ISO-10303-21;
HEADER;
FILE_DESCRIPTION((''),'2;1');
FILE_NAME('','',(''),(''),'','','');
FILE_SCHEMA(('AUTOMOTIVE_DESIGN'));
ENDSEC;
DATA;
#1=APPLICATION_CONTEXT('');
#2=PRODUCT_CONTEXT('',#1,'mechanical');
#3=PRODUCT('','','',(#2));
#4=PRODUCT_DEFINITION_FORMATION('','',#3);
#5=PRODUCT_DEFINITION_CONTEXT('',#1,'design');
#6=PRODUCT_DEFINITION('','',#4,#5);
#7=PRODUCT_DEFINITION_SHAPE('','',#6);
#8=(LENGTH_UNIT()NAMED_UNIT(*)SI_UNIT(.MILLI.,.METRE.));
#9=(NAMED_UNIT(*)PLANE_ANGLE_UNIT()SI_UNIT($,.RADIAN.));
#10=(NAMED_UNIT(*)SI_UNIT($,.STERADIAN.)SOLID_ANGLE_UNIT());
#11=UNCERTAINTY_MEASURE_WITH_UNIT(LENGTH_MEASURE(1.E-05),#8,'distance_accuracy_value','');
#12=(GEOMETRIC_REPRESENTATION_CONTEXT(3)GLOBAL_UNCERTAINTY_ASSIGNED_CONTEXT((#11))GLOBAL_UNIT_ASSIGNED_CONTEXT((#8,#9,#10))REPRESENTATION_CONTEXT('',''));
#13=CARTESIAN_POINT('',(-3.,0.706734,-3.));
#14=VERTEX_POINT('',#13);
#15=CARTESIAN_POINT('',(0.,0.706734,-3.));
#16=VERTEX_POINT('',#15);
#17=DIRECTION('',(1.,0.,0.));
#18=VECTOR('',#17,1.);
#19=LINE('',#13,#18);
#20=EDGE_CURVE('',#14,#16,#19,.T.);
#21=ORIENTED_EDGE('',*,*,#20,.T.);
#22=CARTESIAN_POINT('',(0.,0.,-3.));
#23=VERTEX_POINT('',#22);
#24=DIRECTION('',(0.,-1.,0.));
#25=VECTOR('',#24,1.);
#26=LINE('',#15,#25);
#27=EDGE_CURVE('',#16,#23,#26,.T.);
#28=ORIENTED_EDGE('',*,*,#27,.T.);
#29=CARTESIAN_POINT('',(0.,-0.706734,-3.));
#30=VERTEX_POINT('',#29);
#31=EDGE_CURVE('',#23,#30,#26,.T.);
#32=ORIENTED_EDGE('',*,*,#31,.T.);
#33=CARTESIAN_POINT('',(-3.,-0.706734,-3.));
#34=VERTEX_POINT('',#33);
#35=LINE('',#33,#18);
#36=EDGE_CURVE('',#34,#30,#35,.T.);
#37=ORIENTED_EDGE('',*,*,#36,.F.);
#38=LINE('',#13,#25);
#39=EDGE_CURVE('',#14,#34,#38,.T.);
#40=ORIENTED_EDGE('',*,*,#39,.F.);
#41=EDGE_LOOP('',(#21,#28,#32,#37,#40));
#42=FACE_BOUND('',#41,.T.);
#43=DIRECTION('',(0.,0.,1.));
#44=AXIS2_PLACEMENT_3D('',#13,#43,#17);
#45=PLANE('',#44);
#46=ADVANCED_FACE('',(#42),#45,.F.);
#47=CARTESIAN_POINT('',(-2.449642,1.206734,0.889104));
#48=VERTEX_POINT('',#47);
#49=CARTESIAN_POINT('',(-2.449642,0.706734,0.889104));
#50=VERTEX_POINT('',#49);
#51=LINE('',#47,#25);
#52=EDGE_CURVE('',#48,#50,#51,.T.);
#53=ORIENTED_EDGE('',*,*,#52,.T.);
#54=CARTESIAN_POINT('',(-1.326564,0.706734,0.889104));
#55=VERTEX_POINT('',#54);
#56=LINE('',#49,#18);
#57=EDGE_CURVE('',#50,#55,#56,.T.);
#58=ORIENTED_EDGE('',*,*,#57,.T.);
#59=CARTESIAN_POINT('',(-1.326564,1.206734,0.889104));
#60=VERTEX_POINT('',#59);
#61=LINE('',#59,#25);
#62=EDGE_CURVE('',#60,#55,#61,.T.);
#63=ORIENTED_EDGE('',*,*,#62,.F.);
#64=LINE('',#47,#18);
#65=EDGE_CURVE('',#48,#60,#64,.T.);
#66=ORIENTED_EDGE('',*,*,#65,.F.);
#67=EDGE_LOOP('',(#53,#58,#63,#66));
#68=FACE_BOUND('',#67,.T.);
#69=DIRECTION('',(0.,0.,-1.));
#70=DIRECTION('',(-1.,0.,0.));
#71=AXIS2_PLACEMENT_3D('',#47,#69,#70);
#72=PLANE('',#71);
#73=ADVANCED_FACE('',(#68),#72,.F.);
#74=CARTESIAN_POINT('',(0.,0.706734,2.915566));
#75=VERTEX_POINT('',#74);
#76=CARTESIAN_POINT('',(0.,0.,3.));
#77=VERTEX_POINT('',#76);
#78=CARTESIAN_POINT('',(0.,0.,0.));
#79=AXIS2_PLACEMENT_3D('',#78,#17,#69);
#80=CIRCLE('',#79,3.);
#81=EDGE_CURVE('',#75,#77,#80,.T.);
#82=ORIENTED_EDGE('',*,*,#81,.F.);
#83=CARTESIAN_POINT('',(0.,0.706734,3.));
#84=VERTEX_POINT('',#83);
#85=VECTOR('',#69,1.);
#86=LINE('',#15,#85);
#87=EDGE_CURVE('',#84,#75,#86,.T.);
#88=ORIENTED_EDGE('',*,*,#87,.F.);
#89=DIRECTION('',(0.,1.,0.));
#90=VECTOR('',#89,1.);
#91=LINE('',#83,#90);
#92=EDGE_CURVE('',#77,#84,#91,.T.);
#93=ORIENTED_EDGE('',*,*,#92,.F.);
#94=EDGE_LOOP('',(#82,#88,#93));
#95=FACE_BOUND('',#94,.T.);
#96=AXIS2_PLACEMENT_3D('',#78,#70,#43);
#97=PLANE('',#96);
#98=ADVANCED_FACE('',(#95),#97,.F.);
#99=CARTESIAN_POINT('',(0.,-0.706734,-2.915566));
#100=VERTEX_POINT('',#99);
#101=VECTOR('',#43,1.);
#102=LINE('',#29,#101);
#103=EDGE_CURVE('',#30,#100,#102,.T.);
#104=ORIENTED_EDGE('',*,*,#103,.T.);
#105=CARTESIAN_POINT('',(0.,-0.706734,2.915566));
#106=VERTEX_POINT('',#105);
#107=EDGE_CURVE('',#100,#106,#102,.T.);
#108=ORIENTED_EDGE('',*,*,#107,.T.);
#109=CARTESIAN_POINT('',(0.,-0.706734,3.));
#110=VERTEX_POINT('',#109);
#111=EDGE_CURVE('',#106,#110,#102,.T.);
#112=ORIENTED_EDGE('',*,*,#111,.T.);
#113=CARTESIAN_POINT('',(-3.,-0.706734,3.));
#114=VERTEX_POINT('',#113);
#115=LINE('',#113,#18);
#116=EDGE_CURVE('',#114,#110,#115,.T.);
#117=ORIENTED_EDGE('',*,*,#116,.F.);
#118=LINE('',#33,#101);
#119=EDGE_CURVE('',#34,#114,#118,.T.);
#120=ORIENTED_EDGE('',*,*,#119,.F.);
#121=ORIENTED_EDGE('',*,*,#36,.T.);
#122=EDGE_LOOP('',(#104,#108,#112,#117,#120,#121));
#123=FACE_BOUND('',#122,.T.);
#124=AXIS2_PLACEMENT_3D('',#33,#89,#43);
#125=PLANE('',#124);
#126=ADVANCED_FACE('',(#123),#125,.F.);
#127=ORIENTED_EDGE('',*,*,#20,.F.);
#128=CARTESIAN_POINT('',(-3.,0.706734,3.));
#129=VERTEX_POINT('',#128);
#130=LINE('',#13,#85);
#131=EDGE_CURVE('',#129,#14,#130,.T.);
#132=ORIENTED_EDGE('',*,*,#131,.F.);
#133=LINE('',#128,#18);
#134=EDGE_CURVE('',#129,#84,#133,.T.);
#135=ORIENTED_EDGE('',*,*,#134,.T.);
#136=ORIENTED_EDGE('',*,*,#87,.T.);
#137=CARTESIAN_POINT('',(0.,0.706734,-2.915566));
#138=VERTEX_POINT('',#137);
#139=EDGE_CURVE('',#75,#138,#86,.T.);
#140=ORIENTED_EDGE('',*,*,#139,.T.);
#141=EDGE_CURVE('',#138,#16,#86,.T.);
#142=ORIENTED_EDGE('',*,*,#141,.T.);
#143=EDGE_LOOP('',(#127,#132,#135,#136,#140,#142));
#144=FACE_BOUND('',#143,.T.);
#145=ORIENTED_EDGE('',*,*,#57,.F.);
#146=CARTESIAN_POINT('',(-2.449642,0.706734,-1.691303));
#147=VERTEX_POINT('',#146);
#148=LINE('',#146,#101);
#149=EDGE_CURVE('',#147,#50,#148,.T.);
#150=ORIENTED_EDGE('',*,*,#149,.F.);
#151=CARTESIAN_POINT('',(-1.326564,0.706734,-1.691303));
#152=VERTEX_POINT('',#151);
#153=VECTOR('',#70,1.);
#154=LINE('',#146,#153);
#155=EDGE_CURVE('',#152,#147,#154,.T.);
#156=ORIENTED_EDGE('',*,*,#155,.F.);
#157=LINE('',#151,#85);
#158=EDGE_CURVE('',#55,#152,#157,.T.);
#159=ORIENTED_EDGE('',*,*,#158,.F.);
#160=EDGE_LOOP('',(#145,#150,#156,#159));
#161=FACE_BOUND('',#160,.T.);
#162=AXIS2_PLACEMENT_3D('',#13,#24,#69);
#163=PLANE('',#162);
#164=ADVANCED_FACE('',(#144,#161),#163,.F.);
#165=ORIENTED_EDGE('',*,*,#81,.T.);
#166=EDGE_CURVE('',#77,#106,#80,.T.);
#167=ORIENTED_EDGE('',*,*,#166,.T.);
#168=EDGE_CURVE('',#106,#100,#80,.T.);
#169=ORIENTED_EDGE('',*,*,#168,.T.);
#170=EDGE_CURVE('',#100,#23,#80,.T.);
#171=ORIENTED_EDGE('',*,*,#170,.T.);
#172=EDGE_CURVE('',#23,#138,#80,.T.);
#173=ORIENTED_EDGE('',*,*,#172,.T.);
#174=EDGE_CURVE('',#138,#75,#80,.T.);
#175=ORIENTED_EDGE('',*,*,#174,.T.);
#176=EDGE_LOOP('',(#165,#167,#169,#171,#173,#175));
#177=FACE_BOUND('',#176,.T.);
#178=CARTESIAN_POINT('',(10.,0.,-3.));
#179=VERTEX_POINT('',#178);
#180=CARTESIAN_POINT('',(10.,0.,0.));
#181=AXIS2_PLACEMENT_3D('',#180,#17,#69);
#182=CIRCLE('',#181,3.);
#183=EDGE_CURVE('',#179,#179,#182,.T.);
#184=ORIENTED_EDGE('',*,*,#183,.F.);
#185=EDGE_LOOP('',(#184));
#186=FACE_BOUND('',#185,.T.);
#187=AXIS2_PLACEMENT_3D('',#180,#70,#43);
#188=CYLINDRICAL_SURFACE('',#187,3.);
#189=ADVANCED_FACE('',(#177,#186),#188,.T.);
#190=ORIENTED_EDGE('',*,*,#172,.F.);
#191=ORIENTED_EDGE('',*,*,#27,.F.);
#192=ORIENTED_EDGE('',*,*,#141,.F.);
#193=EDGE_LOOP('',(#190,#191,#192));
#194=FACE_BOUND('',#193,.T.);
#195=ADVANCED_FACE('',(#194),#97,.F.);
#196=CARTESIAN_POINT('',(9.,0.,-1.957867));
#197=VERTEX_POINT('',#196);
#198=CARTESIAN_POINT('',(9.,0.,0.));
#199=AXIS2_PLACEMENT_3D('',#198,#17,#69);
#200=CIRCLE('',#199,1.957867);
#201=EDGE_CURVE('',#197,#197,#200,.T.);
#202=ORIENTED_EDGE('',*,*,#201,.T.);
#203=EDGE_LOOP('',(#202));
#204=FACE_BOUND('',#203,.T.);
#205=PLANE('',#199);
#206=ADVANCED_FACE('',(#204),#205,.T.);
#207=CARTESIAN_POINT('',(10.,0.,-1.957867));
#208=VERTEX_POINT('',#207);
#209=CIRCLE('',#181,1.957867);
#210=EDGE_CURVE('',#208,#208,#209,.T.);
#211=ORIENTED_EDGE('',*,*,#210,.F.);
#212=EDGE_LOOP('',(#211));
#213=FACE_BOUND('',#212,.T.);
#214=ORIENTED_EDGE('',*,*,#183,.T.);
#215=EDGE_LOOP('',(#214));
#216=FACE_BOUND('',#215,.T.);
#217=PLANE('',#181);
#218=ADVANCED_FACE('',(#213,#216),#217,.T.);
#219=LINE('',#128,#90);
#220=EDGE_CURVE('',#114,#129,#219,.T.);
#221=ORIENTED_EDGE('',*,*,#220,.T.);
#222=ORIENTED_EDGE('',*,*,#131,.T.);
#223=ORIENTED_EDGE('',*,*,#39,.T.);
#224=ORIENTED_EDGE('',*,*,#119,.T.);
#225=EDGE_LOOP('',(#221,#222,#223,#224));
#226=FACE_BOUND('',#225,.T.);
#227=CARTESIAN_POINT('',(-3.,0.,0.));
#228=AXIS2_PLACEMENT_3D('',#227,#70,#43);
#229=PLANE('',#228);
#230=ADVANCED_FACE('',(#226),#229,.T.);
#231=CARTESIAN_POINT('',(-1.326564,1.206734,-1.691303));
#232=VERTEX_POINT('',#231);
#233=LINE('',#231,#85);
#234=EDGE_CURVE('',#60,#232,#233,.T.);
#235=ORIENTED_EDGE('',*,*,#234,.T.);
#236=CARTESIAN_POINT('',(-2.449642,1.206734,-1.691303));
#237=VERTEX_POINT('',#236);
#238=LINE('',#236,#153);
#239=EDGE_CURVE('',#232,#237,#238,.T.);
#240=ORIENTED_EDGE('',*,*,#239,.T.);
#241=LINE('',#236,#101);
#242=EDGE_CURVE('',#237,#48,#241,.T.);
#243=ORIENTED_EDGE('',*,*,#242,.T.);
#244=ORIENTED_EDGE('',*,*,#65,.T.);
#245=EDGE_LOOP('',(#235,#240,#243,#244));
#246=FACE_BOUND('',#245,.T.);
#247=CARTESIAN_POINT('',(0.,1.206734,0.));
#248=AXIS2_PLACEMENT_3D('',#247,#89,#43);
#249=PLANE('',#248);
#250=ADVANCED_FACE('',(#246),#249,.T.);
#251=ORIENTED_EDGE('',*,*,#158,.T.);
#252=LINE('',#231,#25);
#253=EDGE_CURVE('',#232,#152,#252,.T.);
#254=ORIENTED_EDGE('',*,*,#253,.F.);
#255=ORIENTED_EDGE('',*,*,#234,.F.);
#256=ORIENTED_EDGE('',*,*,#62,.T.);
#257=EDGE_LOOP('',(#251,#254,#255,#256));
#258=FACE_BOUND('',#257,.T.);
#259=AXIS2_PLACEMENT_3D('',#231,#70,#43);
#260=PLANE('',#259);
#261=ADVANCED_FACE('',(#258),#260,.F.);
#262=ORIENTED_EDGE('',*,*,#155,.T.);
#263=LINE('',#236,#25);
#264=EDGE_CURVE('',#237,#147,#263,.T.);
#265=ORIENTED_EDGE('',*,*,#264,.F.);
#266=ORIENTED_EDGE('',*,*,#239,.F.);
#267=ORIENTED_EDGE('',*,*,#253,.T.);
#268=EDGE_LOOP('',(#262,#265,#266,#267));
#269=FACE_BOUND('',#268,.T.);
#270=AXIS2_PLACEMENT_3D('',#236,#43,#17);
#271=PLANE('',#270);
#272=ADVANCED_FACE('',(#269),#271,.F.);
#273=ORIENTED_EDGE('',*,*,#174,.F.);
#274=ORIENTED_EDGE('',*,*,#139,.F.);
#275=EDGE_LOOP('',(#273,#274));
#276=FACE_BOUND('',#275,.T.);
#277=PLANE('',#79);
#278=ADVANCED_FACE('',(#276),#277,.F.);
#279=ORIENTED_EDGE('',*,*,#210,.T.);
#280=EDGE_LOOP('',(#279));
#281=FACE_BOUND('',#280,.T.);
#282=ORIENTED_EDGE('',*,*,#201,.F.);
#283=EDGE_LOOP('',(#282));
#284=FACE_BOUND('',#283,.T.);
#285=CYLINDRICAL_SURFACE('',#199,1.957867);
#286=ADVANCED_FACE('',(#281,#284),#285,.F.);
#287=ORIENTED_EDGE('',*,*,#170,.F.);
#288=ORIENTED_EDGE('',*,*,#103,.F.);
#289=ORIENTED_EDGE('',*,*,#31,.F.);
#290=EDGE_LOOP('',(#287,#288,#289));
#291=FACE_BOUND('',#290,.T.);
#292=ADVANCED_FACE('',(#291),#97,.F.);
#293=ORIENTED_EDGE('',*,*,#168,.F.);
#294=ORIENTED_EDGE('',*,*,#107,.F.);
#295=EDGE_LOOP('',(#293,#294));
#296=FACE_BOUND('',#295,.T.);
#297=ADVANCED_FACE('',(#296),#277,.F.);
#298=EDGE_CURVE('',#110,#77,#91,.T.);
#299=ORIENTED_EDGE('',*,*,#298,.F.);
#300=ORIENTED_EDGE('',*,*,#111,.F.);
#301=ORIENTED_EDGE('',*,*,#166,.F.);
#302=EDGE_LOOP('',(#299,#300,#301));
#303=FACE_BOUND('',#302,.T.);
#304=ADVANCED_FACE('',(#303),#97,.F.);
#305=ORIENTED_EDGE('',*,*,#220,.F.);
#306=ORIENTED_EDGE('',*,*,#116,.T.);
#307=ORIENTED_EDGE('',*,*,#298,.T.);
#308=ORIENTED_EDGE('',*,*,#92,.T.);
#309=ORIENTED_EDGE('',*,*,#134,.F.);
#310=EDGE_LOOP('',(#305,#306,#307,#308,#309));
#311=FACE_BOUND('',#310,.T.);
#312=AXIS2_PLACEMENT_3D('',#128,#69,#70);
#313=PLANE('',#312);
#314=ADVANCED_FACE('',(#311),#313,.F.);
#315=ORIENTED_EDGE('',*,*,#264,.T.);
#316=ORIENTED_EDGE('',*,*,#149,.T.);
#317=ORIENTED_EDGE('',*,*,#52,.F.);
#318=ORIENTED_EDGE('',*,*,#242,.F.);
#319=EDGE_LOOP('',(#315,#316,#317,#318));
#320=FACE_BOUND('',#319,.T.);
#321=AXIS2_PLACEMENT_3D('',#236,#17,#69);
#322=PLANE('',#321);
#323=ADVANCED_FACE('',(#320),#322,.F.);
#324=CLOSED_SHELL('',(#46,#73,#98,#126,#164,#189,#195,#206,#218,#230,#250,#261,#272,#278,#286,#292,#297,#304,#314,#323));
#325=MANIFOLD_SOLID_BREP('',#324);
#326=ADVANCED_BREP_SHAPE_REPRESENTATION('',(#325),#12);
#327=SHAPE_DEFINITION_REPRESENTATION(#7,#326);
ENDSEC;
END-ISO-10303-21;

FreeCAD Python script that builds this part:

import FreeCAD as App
import Part
import Sketcher
from FreeCAD import Vector

doc = App.newDocument("Part")
body = doc.addObject("PartDesign::Body", "Body")

# Sketch on YZ plane
sketch1 = doc.addObject("Sketcher::SketchObject", "Sketch")
body.addObject(sketch1)
sketch1.AttachmentSupport = (doc.YZ_Plane, [""])
sketch1.MapMode = "FlatFace"
sketch1.addGeometry(Part.Circle(Vector(0, 0, 0), Vector(0, 0, 1), 3), False)
sketch1.addConstraint([
    Sketcher.Constraint("Coincident", 0, 3, -1, 1),
    Sketcher.Constraint("Diameter", 0, 6.0),
])
pad1 = doc.addObject("PartDesign::Pad", "Pad")
body.addObject(pad1)
pad1.Profile = sketch1
pad1.Length = 10

# Sketch on YZ plane
sketch2 = doc.addObject("Sketcher::SketchObject", "Sketch001")
body.addObject(sketch2)
sketch2.AttachmentSupport = (doc.YZ_Plane, [""])
sketch2.MapMode = "FlatFace"
sketch2.AttachmentOffset = App.Placement(Vector(0, 0, 10), App.Rotation())
sketch2.addGeometry(Part.Circle(Vector(0, 0, 0), Vector(0, 0, 1), 2), False)
sketch2.addConstraint([
    Sketcher.Constraint("Coincident", 0, 3, -1, 1),
    Sketcher.Constraint("Diameter", 0, 3.915734),
])
pocket1 = doc.addObject("PartDesign::Pocket", "Pocket")
body.addObject(pocket1)
pocket1.Profile = sketch2
pocket1.Length = 1

# Sketch on YZ plane
sketch3 = doc.addObject("Sketcher::SketchObject", "Sketch002")
body.addObject(sketch3)
sketch3.AttachmentSupport = (doc.YZ_Plane, [""])
sketch3.MapMode = "FlatFace"
sketch3.addGeometry([
    Part.LineSegment(Vector(0.7, -3, 0), Vector(-0.7, -3, 0)),
    Part.LineSegment(Vector(-0.7, -3, 0), Vector(-0.7, 3, 0)),
    Part.LineSegment(Vector(-0.7, 3, 0), Vector(0.7, 3, 0)),
    Part.LineSegment(Vector(0.7, 3, 0), Vector(0.7, -3, 0)),
], False)
sketch3.addConstraint([
    Sketcher.Constraint("Coincident", 0, 2, 1, 1),
    Sketcher.Constraint("Coincident", 1, 2, 2, 1),
    Sketcher.Constraint("Coincident", 2, 2, 3, 1),
    Sketcher.Constraint("Coincident", 3, 2, 0, 1),
    Sketcher.Constraint("Horizontal", 0),
    Sketcher.Constraint("Vertical", 1),
    Sketcher.Constraint("Horizontal", 2),
    Sketcher.Constraint("Vertical", 3),
    Sketcher.Constraint("Symmetric", 0, 2, 2, 2, -1, 1),
    Sketcher.Constraint("DistanceY", 1, 1, 1, 2, 6.0),
    Sketcher.Constraint("DistanceX", 0, 2, 0, 1, 1.413467),
])
pad2 = doc.addObject("PartDesign::Pad", "Pad001")
body.addObject(pad2)
pad2.Profile = sketch3
pad2.Length = 3
pad2.Reversed = True

# Sketch on XZ plane
sketch4 = doc.addObject("Sketcher::SketchObject", "Sketch003")
body.addObject(sketch4)
sketch4.AttachmentSupport = (doc.XZ_Plane, [""])
sketch4.MapMode = "FlatFace"
sketch4.AttachmentOffset = App.Placement(Vector(0, 0, -0.706734), App.Rotation())
sketch4.addGeometry([
    Part.LineSegment(Vector(-2.4, -1.7, 0), Vector(-2.4, 0.9, 0)),
    Part.LineSegment(Vector(-2.4, 0.9, 0), Vector(-1.3, 0.9, 0)),
    Part.LineSegment(Vector(-1.3, 0.9, 0), Vector(-1.3, -1.7, 0)),
    Part.LineSegment(Vector(-1.3, -1.7, 0), Vector(-2.4, -1.7, 0)),
], False)
sketch4.addConstraint([
    Sketcher.Constraint("Coincident", 0, 2, 1, 1),
    Sketcher.Constraint("Coincident", 1, 2, 2, 1),
    Sketcher.Constraint("Coincident", 2, 2, 3, 1),
    Sketcher.Constraint("Coincident", 3, 2, 0, 1),
    Sketcher.Constraint("Vertical", 0),
    Sketcher.Constraint("Horizontal", 1),
    Sketcher.Constraint("Vertical", 2),
    Sketcher.Constraint("Horizontal", 3),
    Sketcher.Constraint("DistanceX", 1, 1, 1, 2, 1.123078),
    Sketcher.Constraint("DistanceY", 0, 1, 0, 2, 2.580407),
    Sketcher.Constraint("DistanceX", 0, 2, -1, 1, 2.449642),
    Sketcher.Constraint("DistanceY", -1, 1, 0, 2, 0.889104),
])
pad3 = doc.addObject("PartDesign::Pad", "Pad002")
body.addObject(pad3)
pad3.Profile = sketch4
pad3.Length = 0.5
pad3.Reversed = True

doc.recompute()
